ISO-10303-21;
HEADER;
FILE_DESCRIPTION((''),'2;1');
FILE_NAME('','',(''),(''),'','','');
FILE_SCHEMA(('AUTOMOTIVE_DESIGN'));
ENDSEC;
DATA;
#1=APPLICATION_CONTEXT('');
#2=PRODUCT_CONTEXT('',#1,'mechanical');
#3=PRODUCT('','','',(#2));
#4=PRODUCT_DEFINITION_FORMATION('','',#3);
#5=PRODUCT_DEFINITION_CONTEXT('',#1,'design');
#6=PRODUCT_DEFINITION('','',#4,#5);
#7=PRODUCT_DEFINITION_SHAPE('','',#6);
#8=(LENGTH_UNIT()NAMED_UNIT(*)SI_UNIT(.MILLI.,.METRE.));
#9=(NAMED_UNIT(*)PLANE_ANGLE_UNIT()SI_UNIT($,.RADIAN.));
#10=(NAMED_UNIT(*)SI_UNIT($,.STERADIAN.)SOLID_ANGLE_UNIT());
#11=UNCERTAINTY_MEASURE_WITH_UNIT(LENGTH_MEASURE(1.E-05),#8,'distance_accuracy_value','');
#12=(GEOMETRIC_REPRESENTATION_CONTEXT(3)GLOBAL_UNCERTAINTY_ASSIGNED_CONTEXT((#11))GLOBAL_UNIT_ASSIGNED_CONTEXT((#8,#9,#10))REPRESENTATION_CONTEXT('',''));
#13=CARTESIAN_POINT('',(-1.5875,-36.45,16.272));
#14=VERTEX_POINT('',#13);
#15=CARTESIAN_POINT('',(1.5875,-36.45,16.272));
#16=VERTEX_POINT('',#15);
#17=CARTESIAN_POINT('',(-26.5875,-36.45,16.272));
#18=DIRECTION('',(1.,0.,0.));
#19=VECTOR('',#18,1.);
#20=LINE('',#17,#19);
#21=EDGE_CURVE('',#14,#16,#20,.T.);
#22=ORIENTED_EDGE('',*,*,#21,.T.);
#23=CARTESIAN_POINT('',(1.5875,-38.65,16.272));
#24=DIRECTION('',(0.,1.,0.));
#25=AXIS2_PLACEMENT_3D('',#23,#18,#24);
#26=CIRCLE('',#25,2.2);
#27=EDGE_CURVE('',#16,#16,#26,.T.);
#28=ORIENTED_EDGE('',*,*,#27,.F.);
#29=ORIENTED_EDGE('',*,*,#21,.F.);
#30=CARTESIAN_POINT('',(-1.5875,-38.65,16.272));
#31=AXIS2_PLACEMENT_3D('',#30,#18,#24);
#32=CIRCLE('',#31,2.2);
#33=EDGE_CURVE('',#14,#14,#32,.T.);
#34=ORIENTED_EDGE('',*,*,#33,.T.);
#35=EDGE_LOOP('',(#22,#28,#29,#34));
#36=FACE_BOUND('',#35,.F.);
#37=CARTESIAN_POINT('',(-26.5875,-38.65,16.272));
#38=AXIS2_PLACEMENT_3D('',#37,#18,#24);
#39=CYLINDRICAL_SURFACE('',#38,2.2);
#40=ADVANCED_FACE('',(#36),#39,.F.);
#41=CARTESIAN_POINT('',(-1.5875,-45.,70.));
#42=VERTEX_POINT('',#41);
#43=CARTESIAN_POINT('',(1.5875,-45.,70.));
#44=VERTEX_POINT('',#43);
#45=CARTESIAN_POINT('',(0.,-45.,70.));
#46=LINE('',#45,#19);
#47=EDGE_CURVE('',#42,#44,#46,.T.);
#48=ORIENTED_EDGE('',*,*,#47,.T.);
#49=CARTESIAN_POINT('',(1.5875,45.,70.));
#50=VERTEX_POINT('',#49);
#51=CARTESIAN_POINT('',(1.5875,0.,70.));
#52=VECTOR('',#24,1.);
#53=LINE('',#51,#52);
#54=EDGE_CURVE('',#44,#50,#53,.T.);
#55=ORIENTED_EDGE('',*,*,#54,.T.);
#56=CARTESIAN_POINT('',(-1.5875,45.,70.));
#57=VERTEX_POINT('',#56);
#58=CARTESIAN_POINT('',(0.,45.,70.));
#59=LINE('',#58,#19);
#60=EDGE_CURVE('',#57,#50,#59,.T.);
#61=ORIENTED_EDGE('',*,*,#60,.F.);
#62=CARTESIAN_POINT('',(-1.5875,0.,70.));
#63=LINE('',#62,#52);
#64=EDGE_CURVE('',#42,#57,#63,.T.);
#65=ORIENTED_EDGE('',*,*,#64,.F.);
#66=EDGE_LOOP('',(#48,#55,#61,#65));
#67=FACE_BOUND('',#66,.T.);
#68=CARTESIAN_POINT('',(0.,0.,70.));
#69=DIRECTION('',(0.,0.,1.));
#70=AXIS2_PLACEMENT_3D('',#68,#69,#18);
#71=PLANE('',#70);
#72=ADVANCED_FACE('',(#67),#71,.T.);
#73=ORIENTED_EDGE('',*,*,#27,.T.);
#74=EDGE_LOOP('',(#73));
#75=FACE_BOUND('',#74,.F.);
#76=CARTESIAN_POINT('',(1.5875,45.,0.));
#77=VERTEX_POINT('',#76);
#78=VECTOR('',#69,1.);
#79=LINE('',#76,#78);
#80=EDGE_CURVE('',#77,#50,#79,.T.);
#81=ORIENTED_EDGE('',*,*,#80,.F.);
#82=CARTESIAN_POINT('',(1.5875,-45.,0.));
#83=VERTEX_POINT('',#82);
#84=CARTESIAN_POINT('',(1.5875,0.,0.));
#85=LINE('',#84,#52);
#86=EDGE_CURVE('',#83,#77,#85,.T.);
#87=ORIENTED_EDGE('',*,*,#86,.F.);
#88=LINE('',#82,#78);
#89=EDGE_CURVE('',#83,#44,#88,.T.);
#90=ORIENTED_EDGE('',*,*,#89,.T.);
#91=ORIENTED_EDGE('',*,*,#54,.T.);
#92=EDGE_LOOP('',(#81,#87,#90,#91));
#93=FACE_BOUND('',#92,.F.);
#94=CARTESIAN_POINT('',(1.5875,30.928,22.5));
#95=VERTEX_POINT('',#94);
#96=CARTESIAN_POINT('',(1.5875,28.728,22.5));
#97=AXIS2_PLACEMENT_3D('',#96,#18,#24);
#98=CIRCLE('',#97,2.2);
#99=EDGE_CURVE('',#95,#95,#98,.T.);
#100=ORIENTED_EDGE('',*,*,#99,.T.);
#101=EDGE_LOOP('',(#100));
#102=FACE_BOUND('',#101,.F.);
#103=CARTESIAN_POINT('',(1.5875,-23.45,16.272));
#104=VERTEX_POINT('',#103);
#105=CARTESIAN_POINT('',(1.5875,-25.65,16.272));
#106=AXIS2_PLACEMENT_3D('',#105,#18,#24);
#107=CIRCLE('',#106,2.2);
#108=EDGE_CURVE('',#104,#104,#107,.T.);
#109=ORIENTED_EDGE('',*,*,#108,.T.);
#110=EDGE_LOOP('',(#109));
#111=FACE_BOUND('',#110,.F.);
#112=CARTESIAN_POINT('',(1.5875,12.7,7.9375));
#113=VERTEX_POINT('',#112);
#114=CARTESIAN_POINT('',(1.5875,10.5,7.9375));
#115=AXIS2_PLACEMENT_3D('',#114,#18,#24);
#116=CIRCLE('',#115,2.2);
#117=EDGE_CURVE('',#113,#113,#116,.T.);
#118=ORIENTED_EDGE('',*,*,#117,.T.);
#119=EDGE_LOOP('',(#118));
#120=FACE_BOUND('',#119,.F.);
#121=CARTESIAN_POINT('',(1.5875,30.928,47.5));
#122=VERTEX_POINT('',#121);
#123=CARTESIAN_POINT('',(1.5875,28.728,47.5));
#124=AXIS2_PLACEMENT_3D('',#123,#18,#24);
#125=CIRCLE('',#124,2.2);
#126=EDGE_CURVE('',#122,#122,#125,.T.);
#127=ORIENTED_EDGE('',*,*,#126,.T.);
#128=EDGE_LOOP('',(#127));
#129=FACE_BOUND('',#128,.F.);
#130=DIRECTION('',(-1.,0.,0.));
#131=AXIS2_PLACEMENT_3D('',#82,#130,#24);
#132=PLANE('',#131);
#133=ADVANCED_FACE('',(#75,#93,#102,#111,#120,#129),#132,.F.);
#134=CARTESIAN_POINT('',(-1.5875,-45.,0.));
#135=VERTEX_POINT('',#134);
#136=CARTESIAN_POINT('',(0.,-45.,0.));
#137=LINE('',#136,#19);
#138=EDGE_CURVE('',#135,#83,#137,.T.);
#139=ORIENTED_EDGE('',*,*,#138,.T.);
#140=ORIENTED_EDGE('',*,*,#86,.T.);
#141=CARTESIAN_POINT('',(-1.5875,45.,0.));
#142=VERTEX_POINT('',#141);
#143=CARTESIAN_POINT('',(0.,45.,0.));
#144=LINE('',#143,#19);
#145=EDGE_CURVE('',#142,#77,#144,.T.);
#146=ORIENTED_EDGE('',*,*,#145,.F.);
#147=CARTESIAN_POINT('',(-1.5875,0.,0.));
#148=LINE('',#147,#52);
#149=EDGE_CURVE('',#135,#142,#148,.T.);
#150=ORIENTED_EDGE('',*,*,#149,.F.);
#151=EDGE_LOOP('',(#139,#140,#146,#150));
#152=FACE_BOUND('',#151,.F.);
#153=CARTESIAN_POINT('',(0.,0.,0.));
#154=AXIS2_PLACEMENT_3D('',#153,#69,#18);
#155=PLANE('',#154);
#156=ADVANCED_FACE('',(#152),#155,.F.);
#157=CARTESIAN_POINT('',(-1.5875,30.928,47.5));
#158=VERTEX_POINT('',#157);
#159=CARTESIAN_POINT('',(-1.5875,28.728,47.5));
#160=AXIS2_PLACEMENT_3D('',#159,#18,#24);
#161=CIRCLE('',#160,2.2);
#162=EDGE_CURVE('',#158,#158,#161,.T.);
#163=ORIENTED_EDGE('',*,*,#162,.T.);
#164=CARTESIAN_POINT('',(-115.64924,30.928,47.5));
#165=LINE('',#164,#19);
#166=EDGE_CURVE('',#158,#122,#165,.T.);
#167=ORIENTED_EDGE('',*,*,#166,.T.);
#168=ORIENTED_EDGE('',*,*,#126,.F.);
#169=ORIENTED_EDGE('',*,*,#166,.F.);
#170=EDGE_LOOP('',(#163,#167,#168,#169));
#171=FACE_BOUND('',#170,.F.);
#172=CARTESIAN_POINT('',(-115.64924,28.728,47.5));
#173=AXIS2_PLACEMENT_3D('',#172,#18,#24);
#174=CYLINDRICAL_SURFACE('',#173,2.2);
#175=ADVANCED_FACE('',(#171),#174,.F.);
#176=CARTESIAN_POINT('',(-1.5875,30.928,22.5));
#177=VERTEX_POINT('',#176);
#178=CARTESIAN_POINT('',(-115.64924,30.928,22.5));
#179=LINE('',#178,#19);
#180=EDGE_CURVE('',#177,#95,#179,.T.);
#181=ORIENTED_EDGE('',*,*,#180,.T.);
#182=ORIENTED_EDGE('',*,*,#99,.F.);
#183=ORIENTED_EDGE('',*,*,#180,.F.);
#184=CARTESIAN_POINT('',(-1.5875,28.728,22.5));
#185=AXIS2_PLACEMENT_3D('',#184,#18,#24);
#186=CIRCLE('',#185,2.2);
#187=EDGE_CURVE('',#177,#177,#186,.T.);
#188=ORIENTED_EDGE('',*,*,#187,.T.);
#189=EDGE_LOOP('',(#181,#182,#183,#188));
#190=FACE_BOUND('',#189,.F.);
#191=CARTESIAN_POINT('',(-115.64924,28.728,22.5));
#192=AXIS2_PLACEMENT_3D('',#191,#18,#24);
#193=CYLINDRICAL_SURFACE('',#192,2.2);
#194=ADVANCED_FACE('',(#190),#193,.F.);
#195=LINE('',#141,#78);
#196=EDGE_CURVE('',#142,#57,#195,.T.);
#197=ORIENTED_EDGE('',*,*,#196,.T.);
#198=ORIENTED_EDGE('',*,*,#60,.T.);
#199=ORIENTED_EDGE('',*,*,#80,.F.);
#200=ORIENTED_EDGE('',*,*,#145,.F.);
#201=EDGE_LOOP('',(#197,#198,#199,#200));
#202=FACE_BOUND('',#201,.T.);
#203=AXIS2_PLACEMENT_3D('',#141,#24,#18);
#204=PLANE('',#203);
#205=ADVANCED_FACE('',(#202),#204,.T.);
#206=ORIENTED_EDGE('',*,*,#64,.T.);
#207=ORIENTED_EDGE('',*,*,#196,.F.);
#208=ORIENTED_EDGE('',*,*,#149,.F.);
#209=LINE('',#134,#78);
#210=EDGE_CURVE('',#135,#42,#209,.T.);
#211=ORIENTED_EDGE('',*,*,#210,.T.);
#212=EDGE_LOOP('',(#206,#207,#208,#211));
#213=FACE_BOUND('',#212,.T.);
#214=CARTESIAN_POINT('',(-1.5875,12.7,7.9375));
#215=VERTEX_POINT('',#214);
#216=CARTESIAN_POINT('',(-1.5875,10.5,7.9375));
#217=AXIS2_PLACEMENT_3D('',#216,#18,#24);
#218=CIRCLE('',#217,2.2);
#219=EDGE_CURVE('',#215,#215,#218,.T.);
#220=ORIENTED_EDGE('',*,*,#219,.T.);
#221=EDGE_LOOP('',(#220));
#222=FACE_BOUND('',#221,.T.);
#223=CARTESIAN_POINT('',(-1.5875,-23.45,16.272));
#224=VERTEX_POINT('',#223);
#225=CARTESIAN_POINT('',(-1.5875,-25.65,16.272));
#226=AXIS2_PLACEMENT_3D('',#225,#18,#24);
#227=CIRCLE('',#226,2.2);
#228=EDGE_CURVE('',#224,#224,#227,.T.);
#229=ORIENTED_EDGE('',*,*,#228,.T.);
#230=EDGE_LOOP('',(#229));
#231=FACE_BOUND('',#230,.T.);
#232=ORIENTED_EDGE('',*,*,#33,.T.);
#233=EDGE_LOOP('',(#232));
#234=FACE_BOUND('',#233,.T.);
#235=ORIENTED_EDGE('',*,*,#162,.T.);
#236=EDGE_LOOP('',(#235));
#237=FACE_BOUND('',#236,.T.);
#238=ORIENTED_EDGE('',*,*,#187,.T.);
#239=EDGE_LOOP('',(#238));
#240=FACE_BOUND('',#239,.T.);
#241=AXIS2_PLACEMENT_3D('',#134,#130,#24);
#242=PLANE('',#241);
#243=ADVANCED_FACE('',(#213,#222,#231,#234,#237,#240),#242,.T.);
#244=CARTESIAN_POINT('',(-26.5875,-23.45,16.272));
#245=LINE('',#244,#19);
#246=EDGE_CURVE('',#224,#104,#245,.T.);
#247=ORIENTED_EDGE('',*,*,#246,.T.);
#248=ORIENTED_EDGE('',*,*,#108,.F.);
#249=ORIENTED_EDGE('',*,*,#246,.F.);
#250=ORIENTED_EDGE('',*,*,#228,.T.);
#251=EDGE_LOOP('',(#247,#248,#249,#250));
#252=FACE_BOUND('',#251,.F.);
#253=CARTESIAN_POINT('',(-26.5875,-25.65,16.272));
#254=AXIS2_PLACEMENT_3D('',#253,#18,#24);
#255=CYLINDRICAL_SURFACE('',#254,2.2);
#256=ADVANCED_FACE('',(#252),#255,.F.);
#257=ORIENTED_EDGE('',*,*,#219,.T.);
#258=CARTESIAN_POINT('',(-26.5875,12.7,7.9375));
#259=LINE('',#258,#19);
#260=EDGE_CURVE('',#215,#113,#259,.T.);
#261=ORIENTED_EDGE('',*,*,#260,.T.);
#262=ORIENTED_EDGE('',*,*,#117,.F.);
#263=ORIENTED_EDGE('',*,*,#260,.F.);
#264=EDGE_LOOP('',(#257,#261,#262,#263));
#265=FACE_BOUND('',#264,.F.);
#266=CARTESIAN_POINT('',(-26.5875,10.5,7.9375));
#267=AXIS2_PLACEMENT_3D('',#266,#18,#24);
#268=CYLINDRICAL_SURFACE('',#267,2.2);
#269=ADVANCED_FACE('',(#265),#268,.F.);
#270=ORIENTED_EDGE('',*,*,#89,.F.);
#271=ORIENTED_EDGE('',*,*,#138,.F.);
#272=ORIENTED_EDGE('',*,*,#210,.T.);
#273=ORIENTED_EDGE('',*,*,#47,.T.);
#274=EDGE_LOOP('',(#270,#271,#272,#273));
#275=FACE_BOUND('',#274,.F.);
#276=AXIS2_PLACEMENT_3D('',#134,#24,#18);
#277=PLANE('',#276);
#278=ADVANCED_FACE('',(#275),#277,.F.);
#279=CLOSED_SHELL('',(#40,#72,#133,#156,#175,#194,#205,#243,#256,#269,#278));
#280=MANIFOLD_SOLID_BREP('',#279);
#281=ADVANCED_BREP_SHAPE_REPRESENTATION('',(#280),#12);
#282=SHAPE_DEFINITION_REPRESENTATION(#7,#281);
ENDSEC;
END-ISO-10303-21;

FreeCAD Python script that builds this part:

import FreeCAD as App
import Part
import Sketcher
Q = App.Units.Quantity

doc = App.newDocument("Part")
body = doc.addObject("PartDesign::Body", "Body")

# Sketch on XY plane
sketch1 = doc.addObject("Sketcher::SketchObject", "Sketch")
body.addObject(sketch1)
sketch1.AttachmentSupport = (doc.XY_Plane, [""])
sketch1.MapMode = "FlatFace"
sketch1.addGeometry([
    Part.LineSegment(App.Vector(-1.5875, 45, 0), App.Vector(-1.5875, -45, 0)),
    Part.LineSegment(App.Vector(-1.5875, -45, 0), App.Vector(1.5875, -45, 0)),
    Part.LineSegment(App.Vector(1.5875, -45, 0), App.Vector(1.5875, 45, 0)),
    Part.LineSegment(App.Vector(1.5875, 45, 0), App.Vector(-1.5875, 45, 0)),
], False)
sketch1.addConstraint([
    Sketcher.Constraint("Coincident", 0, 2, 1, 1),
    Sketcher.Constraint("Coincident", 1, 2, 2, 1),
    Sketcher.Constraint("Coincident", 2, 2, 3, 1),
    Sketcher.Constraint("Coincident", 3, 2, 0, 1),
    Sketcher.Constraint("Vertical", 0),
    Sketcher.Constraint("Horizontal", 1),
    Sketcher.Constraint("Vertical", 2),
    Sketcher.Constraint("Horizontal", 3),
    Sketcher.Constraint("Symmetric", 0, 2, 2, 2, -1, 1),
    Sketcher.Constraint("DistanceY", 0, 2, 0, 1, Q("90 mm")),
    Sketcher.Constraint("DistanceX", 1, 1, 1, 2, Q("3.175 mm")),
])
pad1 = doc.addObject("PartDesign::Pad", "Pad")
body.addObject(pad1)
pad1.Profile = sketch1
pad1.Length = 70

# Sketch on YZ plane
sketch2 = doc.addObject("Sketcher::SketchObject", "Sketch001")
body.addObject(sketch2)
sketch2.AttachmentSupport = (doc.YZ_Plane, [""])
sketch2.MapMode = "FlatFace"
sketch2.AttachmentOffset = App.Placement(App.Vector(0, 0, -1.5875), App.Rotation())
sketch2.addGeometry([
    Part.Circle(App.Vector(28.728, 47.5, 0), App.Vector(0, 0, 1), 2.2),
    Part.Circle(App.Vector(28.728, 22.5, 0), App.Vector(0, 0, 1), 2.2),
], False)
sketch2.addConstraint([
    Sketcher.Constraint("Equal", 0, 1),
    Sketcher.Constraint("Vertical", 0, 3, 1, 3),
    Sketcher.Constraint("Diameter", 0, Q("4.4 mm")),
    Sketcher.Constraint("DistanceY", 1, 3, 0, 3, Q("25 mm")),
    Sketcher.Constraint("DistanceY", -1, 1, 0, 3, Q("47.5 mm")),
    Sketcher.Constraint("DistanceX", -1, 1, 0, 3, Q("28.728 mm")),
])
doc.recompute()
hole = doc.addObject("PartDesign::Hole", "Hole")
body.addObject(hole)
hole.Profile = sketch2
hole.ThreadType = "None"
hole.Diameter = 4.4
hole.DepthType = "ThroughAll"
hole.Reversed = True

# Sketch on YZ plane
sketch3 = doc.addObject("Sketcher::SketchObject", "Sketch002")
body.addObject(sketch3)
sketch3.AttachmentSupport = (doc.YZ_Plane, [""])
sketch3.MapMode = "FlatFace"
sketch3.AttachmentOffset = App.Placement(App.Vector(0, 0, -1.5875), App.Rotation())
sketch3.addGeometry([
    Part.Circle(App.Vector(-38.65, 16.272, 0), App.Vector(0, 0, 1), 2.2),
    Part.Circle(App.Vector(-25.65, 16.272, 0), App.Vector(0, 0, 1), 2.2),
    Part.Circle(App.Vector(10.5, 7.9375, 0), App.Vector(0, 0, 1), 2.2),
], False)
sketch3.addConstraint([
    Sketcher.Constraint("Equal", 0, 1),
    Sketcher.Constraint("Equal", 1, 2),
    Sketcher.Constraint("Horizontal", 0, 3, 1, 3),
    Sketcher.Constraint("Diameter", 0, Q("4.4 mm")),
    Sketcher.Constraint("DistanceX", 0, 3, 1, 3, Q("13 mm")),
    Sketcher.Constraint("DistanceX", -1, 1, 2, 3, Q("10.5 mm")),
    Sketcher.Constraint("DistanceX", 0, 3, -1, 1, Q("38.65 mm")),
    Sketcher.Constraint("DistanceY", -1, 1, 0, 3, Q("16.272 mm")),
    Sketcher.Constraint("DistanceY", -1, 1, 2, 3, Q("7.9375 mm")),
])
doc.recompute()
hole2 = doc.addObject("PartDesign::Hole", "Hole001")
body.addObject(hole2)
hole2.Profile = sketch3
hole2.ThreadType = "None"
hole2.Diameter = 4.4
hole2.DepthType = "Dimension"
hole2.Depth = 25
hole2.DrillPoint = "Angled"
hole2.DrillPointAngle = 118
hole2.Reversed = True

doc.recompute()
